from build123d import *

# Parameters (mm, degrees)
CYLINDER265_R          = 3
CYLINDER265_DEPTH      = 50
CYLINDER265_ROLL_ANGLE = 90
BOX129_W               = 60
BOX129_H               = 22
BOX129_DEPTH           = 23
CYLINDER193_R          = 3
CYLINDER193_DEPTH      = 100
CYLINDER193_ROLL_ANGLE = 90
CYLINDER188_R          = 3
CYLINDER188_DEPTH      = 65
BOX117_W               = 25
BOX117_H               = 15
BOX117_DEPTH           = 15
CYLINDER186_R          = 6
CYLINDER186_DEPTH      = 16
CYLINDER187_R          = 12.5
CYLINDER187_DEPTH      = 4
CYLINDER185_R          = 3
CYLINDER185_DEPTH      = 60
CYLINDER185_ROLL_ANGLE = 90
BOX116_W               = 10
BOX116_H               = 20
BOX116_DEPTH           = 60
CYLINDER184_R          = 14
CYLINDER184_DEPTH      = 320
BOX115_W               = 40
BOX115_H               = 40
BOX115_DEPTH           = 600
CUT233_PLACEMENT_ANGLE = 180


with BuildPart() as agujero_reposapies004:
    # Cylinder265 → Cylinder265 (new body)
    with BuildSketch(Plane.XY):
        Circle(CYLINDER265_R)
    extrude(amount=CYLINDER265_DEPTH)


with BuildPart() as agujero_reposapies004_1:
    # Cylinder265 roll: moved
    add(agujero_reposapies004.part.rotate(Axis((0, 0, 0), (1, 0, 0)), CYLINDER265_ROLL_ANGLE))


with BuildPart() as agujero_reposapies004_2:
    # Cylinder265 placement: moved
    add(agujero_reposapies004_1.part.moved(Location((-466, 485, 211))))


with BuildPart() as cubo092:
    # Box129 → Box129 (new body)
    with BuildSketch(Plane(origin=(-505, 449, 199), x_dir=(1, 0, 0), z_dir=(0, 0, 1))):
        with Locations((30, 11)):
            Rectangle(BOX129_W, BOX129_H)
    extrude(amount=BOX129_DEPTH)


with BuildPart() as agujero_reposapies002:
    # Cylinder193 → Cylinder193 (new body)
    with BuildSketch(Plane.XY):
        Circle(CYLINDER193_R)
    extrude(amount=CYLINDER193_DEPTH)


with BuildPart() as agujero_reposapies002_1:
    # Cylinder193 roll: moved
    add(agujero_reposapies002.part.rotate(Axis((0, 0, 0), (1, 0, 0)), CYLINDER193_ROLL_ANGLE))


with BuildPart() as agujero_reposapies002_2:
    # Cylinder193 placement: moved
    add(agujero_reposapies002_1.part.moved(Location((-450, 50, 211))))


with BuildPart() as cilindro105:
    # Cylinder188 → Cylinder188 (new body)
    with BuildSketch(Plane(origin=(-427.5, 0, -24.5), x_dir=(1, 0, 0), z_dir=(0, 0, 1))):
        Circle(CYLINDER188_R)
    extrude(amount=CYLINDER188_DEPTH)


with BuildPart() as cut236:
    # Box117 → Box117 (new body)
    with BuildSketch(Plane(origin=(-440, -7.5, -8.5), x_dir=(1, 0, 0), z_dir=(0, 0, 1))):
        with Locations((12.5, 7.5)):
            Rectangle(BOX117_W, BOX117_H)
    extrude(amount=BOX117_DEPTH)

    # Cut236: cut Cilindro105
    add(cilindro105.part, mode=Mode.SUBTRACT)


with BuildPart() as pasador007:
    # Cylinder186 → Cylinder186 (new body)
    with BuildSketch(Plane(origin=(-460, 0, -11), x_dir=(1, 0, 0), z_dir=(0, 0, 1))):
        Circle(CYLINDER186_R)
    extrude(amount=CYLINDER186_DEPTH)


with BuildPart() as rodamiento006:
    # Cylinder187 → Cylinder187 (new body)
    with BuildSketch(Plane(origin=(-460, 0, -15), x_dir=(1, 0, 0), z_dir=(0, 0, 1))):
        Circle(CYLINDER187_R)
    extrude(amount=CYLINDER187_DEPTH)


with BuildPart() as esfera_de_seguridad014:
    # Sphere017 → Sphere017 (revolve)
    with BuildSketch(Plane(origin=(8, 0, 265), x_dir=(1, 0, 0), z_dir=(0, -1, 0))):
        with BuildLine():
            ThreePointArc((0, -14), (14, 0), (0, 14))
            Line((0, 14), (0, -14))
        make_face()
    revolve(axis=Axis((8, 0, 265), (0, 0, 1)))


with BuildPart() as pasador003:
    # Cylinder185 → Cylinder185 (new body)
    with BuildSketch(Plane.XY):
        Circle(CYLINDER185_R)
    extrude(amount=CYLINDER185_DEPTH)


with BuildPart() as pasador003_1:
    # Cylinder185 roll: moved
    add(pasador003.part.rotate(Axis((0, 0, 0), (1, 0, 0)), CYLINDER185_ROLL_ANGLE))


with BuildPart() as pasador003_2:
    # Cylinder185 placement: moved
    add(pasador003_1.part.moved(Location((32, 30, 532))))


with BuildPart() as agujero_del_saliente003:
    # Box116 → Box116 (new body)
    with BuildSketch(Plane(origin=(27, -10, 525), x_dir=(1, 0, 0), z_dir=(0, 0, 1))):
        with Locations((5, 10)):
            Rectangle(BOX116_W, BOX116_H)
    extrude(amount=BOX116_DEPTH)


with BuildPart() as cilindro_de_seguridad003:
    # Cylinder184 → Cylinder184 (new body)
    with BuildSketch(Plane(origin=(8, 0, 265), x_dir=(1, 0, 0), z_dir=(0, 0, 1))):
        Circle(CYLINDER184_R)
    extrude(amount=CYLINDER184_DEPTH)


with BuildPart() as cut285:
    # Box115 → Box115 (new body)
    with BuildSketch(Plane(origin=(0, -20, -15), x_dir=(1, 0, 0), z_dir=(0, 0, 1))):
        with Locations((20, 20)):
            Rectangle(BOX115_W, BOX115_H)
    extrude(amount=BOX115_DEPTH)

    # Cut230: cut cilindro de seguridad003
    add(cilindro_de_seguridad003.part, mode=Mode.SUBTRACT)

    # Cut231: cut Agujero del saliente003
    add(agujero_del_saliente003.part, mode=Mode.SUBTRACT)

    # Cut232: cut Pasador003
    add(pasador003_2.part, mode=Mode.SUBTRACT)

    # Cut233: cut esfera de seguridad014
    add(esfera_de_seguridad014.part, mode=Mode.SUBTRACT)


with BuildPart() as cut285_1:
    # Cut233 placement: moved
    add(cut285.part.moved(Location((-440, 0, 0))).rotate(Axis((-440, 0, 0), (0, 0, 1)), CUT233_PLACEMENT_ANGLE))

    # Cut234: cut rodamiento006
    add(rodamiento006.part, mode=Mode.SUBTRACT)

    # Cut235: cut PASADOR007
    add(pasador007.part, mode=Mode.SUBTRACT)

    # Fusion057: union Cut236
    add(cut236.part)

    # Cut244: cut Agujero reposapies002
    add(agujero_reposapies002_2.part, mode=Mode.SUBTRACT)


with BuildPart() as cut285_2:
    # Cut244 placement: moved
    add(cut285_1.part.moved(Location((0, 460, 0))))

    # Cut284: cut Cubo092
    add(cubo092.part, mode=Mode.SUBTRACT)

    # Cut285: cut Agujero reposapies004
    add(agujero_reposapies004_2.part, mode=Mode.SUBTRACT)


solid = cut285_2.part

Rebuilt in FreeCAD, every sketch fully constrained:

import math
import FreeCAD as App
import Part
import Sketcher
Q = App.Units.Quantity

doc = App.newDocument("Part")
params = doc.addObject("Spreadsheet::Sheet", "Params")
for row, (alias, value) in enumerate([
    ("sketch1_diameter", "6 mm"),
    ("pad1_length", "50 mm"),
    ("sketch2_width", "60 mm"),
    ("sketch2_height", "22 mm"),
    ("pad2_length", "23 mm"),
    ("sketch3_diameter", "6 mm"),
    ("pad3_length", "100 mm"),
    ("sketch4_diameter", "6 mm"),
    ("pad4_length", "65 mm"),
    ("sketch5_width", "25 mm"),
    ("sketch5_height", "15 mm"),
    ("pad5_length", "15 mm"),
    ("sketch6_diameter", "12 mm"),
    ("pad6_length", "16 mm"),
    ("sketch7_diameter", "25 mm"),
    ("pad7_length", "4 mm"),
    ("sketch8_radius", "14 mm"),
    ("revolution_angle", "360 deg"),
    ("sketch9_diameter", "6 mm"),
    ("pad8_length", "60 mm"),
    ("sketch10_width", "10 mm"),
    ("sketch10_height", "20 mm"),
    ("pad9_length", "60 mm"),
    ("sketch11_diameter", "28 mm"),
    ("pad10_length", "320 mm"),
    ("sketch12_width", "40 mm"),
    ("pad11_length", "600 mm"),
], start=1):
    params.set(f"A{row}", alias)
    params.set(f"B{row}", "=" + value)
    params.setAlias(f"B{row}", alias)

body = doc.addObject("PartDesign::Body", "Body")

sketch1 = doc.addObject("Sketcher::SketchObject", "Sketch")
body.addObject(sketch1)
sketch1.AttachmentSupport = (doc.XY_Plane, [""])
sketch1.MapMode = "FlatFace"
sketch1.addGeometry(Part.Circle(App.Vector(0, 0, 0), App.Vector(0, 0, 1), 3), False)
sketch1.addConstraint([
    Sketcher.Constraint("Coincident", 0, 3, -1, 1),
    Sketcher.Constraint("Diameter", 0, Q("6 mm")),
])
sketch1.setExpression("Constraints[1]", "Params.sketch1_diameter")
pad1 = doc.addObject("PartDesign::Pad", "Pad")
body.addObject(pad1)
pad1.Profile = sketch1
pad1.setExpression("Length", "Params.pad1_length")
body2 = doc.addObject("PartDesign::Body", "Body001")
doc.recompute()

body.Placement = App.Placement(App.Vector(0, 0, 0), App.Rotation(App.Vector(1, 0, 0), 90))
boolean = doc.addObject("PartDesign::Boolean", "Boolean")
body2.addObject(boolean)
boolean.Type = "Fuse"
boolean.addObjects([body])
body3 = doc.addObject("PartDesign::Body", "Body002")
doc.recompute()

body2.Placement = App.Placement(App.Vector(-466, 485, 211), App.Rotation(App.Vector(0, 0, 1), 0))
boolean2 = doc.addObject("PartDesign::Boolean", "Boolean001")
body3.addObject(boolean2)
boolean2.Type = "Fuse"
boolean2.addObjects([body2])
body4 = doc.addObject("PartDesign::Body", "Body003")

sketch2 = doc.addObject("Sketcher::SketchObject", "Sketch001")
body4.addObject(sketch2)
sketch2.AttachmentSupport = (doc.getObject("XY_Plane003"), [""])
sketch2.MapMode = "FlatFace"
sketch2.AttachmentOffset = App.Placement(App.Vector(0, 0, 199), App.Rotation())
sketch2.addGeometry([
    Part.LineSegment(App.Vector(-505, 471, 0), App.Vector(-505, 449, 0)),
    Part.LineSegment(App.Vector(-505, 449, 0), App.Vector(-445, 449, 0)),
    Part.LineSegment(App.Vector(-445, 449, 0), App.Vector(-445, 471, 0)),
    Part.LineSegment(App.Vector(-445, 471, 0), App.Vector(-505, 471, 0)),
], False)
sketch2.addConstraint([
    Sketcher.Constraint("Coincident", 0, 2, 1, 1),
    Sketcher.Constraint("Coincident", 1, 2, 2, 1),
    Sketcher.Constraint("Coincident", 2, 2, 3, 1),
    Sketcher.Constraint("Coincident", 3, 2, 0, 1),
    Sketcher.Constraint("Vertical", 0),
    Sketcher.Constraint("Horizontal", 1),
    Sketcher.Constraint("Vertical", 2),
    Sketcher.Constraint("Horizontal", 3),
    Sketcher.Constraint("DistanceX", 1, 1, 1, 2, Q("60 mm")),
    Sketcher.Constraint("DistanceY", 0, 2, 0, 1, Q("22 mm")),
    Sketcher.Constraint("DistanceX", 0, 2, -1, 1, Q("505 mm")),
    Sketcher.Constraint("DistanceY", -1, 1, 0, 2, Q("449 mm")),
])
sketch2.setExpression("Constraints[8]", "Params.sketch2_width")
sketch2.setExpression("Constraints[9]", "Params.sketch2_height")
pad2 = doc.addObject("PartDesign::Pad", "Pad001")
body4.addObject(pad2)
pad2.Profile = sketch2
pad2.setExpression("Length", "Params.pad2_length")
body5 = doc.addObject("PartDesign::Body", "Body004")

sketch3 = doc.addObject("Sketcher::SketchObject", "Sketch002")
body5.addObject(sketch3)
sketch3.AttachmentSupport = (doc.getObject("XY_Plane004"), [""])
sketch3.MapMode = "FlatFace"
sketch3.addGeometry(Part.Circle(App.Vector(0, 0, 0), App.Vector(0, 0, 1), 3), False)
sketch3.addConstraint([
    Sketcher.Constraint("Coincident", 0, 3, -1, 1),
    Sketcher.Constraint("Diameter", 0, Q("6 mm")),
])
sketch3.setExpression("Constraints[1]", "Params.sketch3_diameter")
pad3 = doc.addObject("PartDesign::Pad", "Pad002")
body5.addObject(pad3)
pad3.Profile = sketch3
pad3.setExpression("Length", "Params.pad3_length")
body6 = doc.addObject("PartDesign::Body", "Body005")
doc.recompute()

body5.Placement = App.Placement(App.Vector(0, 0, 0), App.Rotation(App.Vector(1, 0, 0), 90))
boolean3 = doc.addObject("PartDesign::Boolean", "Boolean002")
body6.addObject(boolean3)
boolean3.Type = "Fuse"
boolean3.addObjects([body5])
body7 = doc.addObject("PartDesign::Body", "Body006")
doc.recompute()

body6.Placement = App.Placement(App.Vector(-450, 50, 211), App.Rotation(App.Vector(0, 0, 1), 0))
boolean4 = doc.addObject("PartDesign::Boolean", "Boolean003")
body7.addObject(boolean4)
boolean4.Type = "Fuse"
boolean4.addObjects([body6])
body8 = doc.addObject("PartDesign::Body", "Body007")

sketch4 = doc.addObject("Sketcher::SketchObject", "Sketch003")
body8.addObject(sketch4)
sketch4.AttachmentSupport = (doc.getObject("XY_Plane007"), [""])
sketch4.MapMode = "FlatFace"
sketch4.AttachmentOffset = App.Placement(App.Vector(0, 0, -24.5), App.Rotation())
sketch4.addGeometry(Part.Circle(App.Vector(-427.5, 0, 0), App.Vector(0, 0, 1), 3), False)
sketch4.addConstraint([
    Sketcher.Constraint("PointOnObject", 0, 3, -1),
    Sketcher.Constraint("Diameter", 0, Q("6 mm")),
    Sketcher.Constraint("DistanceX", 0, 3, -1, 1, Q("427.5 mm")),
])
sketch4.setExpression("Constraints[1]", "Params.sketch4_diameter")
pad4 = doc.addObject("PartDesign::Pad", "Pad003")
body8.addObject(pad4)
pad4.Profile = sketch4
pad4.setExpression("Length", "Params.pad4_length")
body9 = doc.addObject("PartDesign::Body", "Body008")

sketch5 = doc.addObject("Sketcher::SketchObject", "Sketch004")
body9.addObject(sketch5)
sketch5.AttachmentSupport = (doc.getObject("XY_Plane008"), [""])
sketch5.MapMode = "FlatFace"
sketch5.AttachmentOffset = App.Placement(App.Vector(0, 0, -8.5), App.Rotation())
sketch5.addGeometry([
    Part.LineSegment(App.Vector(-440, 8, 0), App.Vector(-440, -8, 0)),
    Part.LineSegment(App.Vector(-440, -8, 0), App.Vector(-415, -8, 0)),
    Part.LineSegment(App.Vector(-415, -8, 0), App.Vector(-415, 8, 0)),
    Part.LineSegment(App.Vector(-415, 8, 0), App.Vector(-440, 8, 0)),
], False)
sketch5.addConstraint([
    Sketcher.Constraint("Coincident", 0, 2, 1, 1),
    Sketcher.Constraint("Coincident", 1, 2, 2, 1),
    Sketcher.Constraint("Coincident", 2, 2, 3, 1),
    Sketcher.Constraint("Coincident", 3, 2, 0, 1),
    Sketcher.Constraint("Vertical", 0),
    Sketcher.Constraint("Horizontal", 1),
    Sketcher.Constraint("Vertical", 2),
    Sketcher.Constraint("Horizontal", 3),
    Sketcher.Constraint("DistanceX", 1, 1, 1, 2, Q("25 mm")),
    Sketcher.Constraint("DistanceY", 0, 2, 0, 1, Q("15 mm")),
    Sketcher.Constraint("DistanceX", 0, 2, -1, 1, Q("440 mm")),
    Sketcher.Constraint("DistanceY", 0, 2, -1, 1, Q("7.5 mm")),
])
sketch5.setExpression("Constraints[8]", "Params.sketch5_width")
sketch5.setExpression("Constraints[9]", "Params.sketch5_height")
pad5 = doc.addObject("PartDesign::Pad", "Pad004")
body9.addObject(pad5)
pad5.Profile = sketch5
pad5.setExpression("Length", "Params.pad5_length")
doc.recompute()

boolean5 = doc.addObject("PartDesign::Boolean", "Boolean004")
body9.addObject(boolean5)
boolean5.Type = "Cut"
boolean5.addObjects([body8])
body10 = doc.addObject("PartDesign::Body", "Body009")

sketch6 = doc.addObject("Sketcher::SketchObject", "Sketch005")
body10.addObject(sketch6)
sketch6.AttachmentSupport = (doc.getObject("XY_Plane009"), [""])
sketch6.MapMode = "FlatFace"
sketch6.AttachmentOffset = App.Placement(App.Vector(0, 0, -11), App.Rotation())
sketch6.addGeometry(Part.Circle(App.Vector(-460, 0, 0), App.Vector(0, 0, 1), 6), False)
sketch6.addConstraint([
    Sketcher.Constraint("PointOnObject", 0, 3, -1),
    Sketcher.Constraint("Diameter", 0, Q("12 mm")),
    Sketcher.Constraint("DistanceX", 0, 3, -1, 1, Q("460 mm")),
])
sketch6.setExpression("Constraints[1]", "Params.sketch6_diameter")
pad6 = doc.addObject("PartDesign::Pad", "Pad005")
body10.addObject(pad6)
pad6.Profile = sketch6
pad6.setExpression("Length", "Params.pad6_length")
body11 = doc.addObject("PartDesign::Body", "Body010")

sketch7 = doc.addObject("Sketcher::SketchObject", "Sketch006")
body11.addObject(sketch7)
sketch7.AttachmentSupport = (doc.getObject("XY_Plane010"), [""])
sketch7.MapMode = "FlatFace"
sketch7.AttachmentOffset = App.Placement(App.Vector(0, 0, -15), App.Rotation())
sketch7.addGeometry(Part.Circle(App.Vector(-460, 0, 0), App.Vector(0, 0, 1), 12), False)
sketch7.addConstraint([
    Sketcher.Constraint("PointOnObject", 0, 3, -1),
    Sketcher.Constraint("Diameter", 0, Q("25 mm")),
    Sketcher.Constraint("DistanceX", 0, 3, -1, 1, Q("460 mm")),
])
sketch7.setExpression("Constraints[1]", "Params.sketch7_diameter")
pad7 = doc.addObject("PartDesign::Pad", "Pad006")
body11.addObject(pad7)
pad7.Profile = sketch7
pad7.setExpression("Length", "Params.pad7_length")
body12 = doc.addObject("PartDesign::Body", "Body011")

sketch8 = doc.addObject("Sketcher::SketchObject", "Sketch007")
body12.addObject(sketch8)
sketch8.AttachmentSupport = (doc.getObject("XZ_Plane011"), [""])
sketch8.MapMode = "FlatFace"
sketch8.addGeometry([
    Part.ArcOfCircle(Part.Circle(App.Vector(8, 265, 0), App.Vector(0, 0, 1), 14), math.radians(-90), math.radians(90)),
    Part.LineSegment(App.Vector(8, 279, 0), App.Vector(8, 251, 0)),
], False)
sketch8.addGeometry(Part.LineSegment(App.Vector(8, 251, 0), App.Vector(8, 279, 0)), True)
sketch8.addConstraint([
    Sketcher.Constraint("Coincident", 0, 1, 1, 2),
    Sketcher.Constraint("Coincident", 1, 1, 0, 2),
    Sketcher.Constraint("Vertical", 1),
    Sketcher.Constraint("Vertical", 2),
    Sketcher.Constraint("Coincident", 2, 1, 0, 1),
    Sketcher.Constraint("Equal", 1, 2),
    Sketcher.Constraint("Radius", 0, Q("14 mm")),
    Sketcher.Constraint("DistanceX", -1, 1, 0, 3, Q("8 mm")),
    Sketcher.Constraint("DistanceY", -1, 1, 0, 3, Q("265 mm")),
    Sketcher.Constraint("DistanceX", -1, 1, 0, 1, Q("8 mm")),
])
sketch8.setExpression("Constraints[6]", "Params.sketch8_radius")
revolution = doc.addObject("PartDesign::Revolution", "Revolution")
body12.addObject(revolution)
revolution.Profile = sketch8
revolution.ReferenceAxis = (sketch8, ["Axis0"])
revolution.setExpression("Angle", "Params.revolution_angle")
body13 = doc.addObject("PartDesign::Body", "Body012")

sketch9 = doc.addObject("Sketcher::SketchObject", "Sketch008")
body13.addObject(sketch9)
sketch9.AttachmentSupport = (doc.getObject("XY_Plane012"), [""])
sketch9.MapMode = "FlatFace"
sketch9.addGeometry(Part.Circle(App.Vector(0, 0, 0), App.Vector(0, 0, 1), 3), False)
sketch9.addConstraint([
    Sketcher.Constraint("Coincident", 0, 3, -1, 1),
    Sketcher.Constraint("Diameter", 0, Q("6 mm")),
])
sketch9.setExpression("Constraints[1]", "Params.sketch9_diameter")
pad8 = doc.addObject("PartDesign::Pad", "Pad007")
body13.addObject(pad8)
pad8.Profile = sketch9
pad8.setExpression("Length", "Params.pad8_length")
body14 = doc.addObject("PartDesign::Body", "Body013")
doc.recompute()

body13.Placement = App.Placement(App.Vector(0, 0, 0), App.Rotation(App.Vector(1, 0, 0), 90))
boolean6 = doc.addObject("PartDesign::Boolean", "Boolean005")
body14.addObject(boolean6)
boolean6.Type = "Fuse"
boolean6.addObjects([body13])
body15 = doc.addObject("PartDesign::Body", "Body014")
doc.recompute()

body14.Placement = App.Placement(App.Vector(32, 30, 532), App.Rotation(App.Vector(0, 0, 1), 0))
boolean7 = doc.addObject("PartDesign::Boolean", "Boolean006")
body15.addObject(boolean7)
boolean7.Type = "Fuse"
boolean7.addObjects([body14])
body16 = doc.addObject("PartDesign::Body", "Body015")

sketch10 = doc.addObject("Sketcher::SketchObject", "Sketch009")
body16.addObject(sketch10)
sketch10.AttachmentSupport = (doc.getObject("XY_Plane015"), [""])
sketch10.MapMode = "FlatFace"
sketch10.AttachmentOffset = App.Placement(App.Vector(0, 0, 525), App.Rotation())
sketch10.addGeometry([
    Part.LineSegment(App.Vector(27, 10, 0), App.Vector(27, -10, 0)),
    Part.LineSegment(App.Vector(27, -10, 0), App.Vector(37, -10, 0)),
    Part.LineSegment(App.Vector(37, -10, 0), App.Vector(37, 10, 0)),
    Part.LineSegment(App.Vector(37, 10, 0), App.Vector(27, 10, 0)),
], False)
sketch10.addConstraint([
    Sketcher.Constraint("Coincident", 0, 2, 1, 1),
    Sketcher.Constraint("Coincident", 1, 2, 2, 1),
    Sketcher.Constraint("Coincident", 2, 2, 3, 1),
    Sketcher.Constraint("Coincident", 3, 2, 0, 1),
    Sketcher.Constraint("Vertical", 0),
    Sketcher.Constraint("Horizontal", 1),
    Sketcher.Constraint("Vertical", 2),
    Sketcher.Constraint("Horizontal", 3),
    Sketcher.Constraint("DistanceX", 1, 1, 1, 2, Q("10 mm")),
    Sketcher.Constraint("DistanceY", 0, 2, 0, 1, Q("20 mm")),
    Sketcher.Constraint("DistanceX", -1, 1, 0, 2, Q("27 mm")),
    Sketcher.Constraint("DistanceY", 0, 2, -1, 1, Q("10 mm")),
])
sketch10.setExpression("Constraints[8]", "Params.sketch10_width")
sketch10.setExpression("Constraints[9]", "Params.sketch10_height")
pad9 = doc.addObject("PartDesign::Pad", "Pad008")
body16.addObject(pad9)
pad9.Profile = sketch10
pad9.setExpression("Length", "Params.pad9_length")
body17 = doc.addObject("PartDesign::Body", "Body016")

sketch11 = doc.addObject("Sketcher::SketchObject", "Sketch010")
body17.addObject(sketch11)
sketch11.AttachmentSupport = (doc.getObject("XY_Plane016"), [""])
sketch11.MapMode = "FlatFace"
sketch11.AttachmentOffset = App.Placement(App.Vector(0, 0, 265), App.Rotation())
sketch11.addGeometry(Part.Circle(App.Vector(8, 0, 0), App.Vector(0, 0, 1), 14), False)
sketch11.addConstraint([
    Sketcher.Constraint("PointOnObject", 0, 3, -1),
    Sketcher.Constraint("Diameter", 0, Q("28 mm")),
    Sketcher.Constraint("DistanceX", -1, 1, 0, 3, Q("8 mm")),
])
sketch11.setExpression("Constraints[1]", "Params.sketch11_diameter")
pad10 = doc.addObject("PartDesign::Pad", "Pad009")
body17.addObject(pad10)
pad10.Profile = sketch11
pad10.setExpression("Length", "Params.pad10_length")
body18 = doc.addObject("PartDesign::Body", "Body017")

sketch12 = doc.addObject("Sketcher::SketchObject", "Sketch011")
body18.addObject(sketch12)
sketch12.AttachmentSupport = (doc.getObject("XY_Plane017"), [""])
sketch12.MapMode = "FlatFace"
sketch12.AttachmentOffset = App.Placement(App.Vector(0, 0, -15), App.Rotation())
sketch12.addGeometry([
    Part.LineSegment(App.Vector(0, 20, 0), App.Vector(0, -20, 0)),
    Part.LineSegment(App.Vector(0, -20, 0), App.Vector(40, -20, 0)),
    Part.LineSegment(App.Vector(40, -20, 0), App.Vector(40, 20, 0)),
    Part.LineSegment(App.Vector(40, 20, 0), App.Vector(0, 20, 0)),
], False)
sketch12.addConstraint([
    Sketcher.Constraint("Coincident", 0, 2, 1, 1),
    Sketcher.Constraint("Coincident", 1, 2, 2, 1),
    Sketcher.Constraint("Coincident", 2, 2, 3, 1),
    Sketcher.Constraint("Coincident", 3, 2, 0, 1),
    Sketcher.Constraint("Vertical", 0),
    Sketcher.Constraint("Horizontal", 1),
    Sketcher.Constraint("Vertical", 2),
    Sketcher.Constraint("Horizontal", 3),
    Sketcher.Constraint("Symmetric", 0, 2, 3, 2, -1, 1),
    Sketcher.Constraint("Equal", 3, 0),
    Sketcher.Constraint("DistanceX", 1, 1, 1, 2, Q("40 mm")),
])
sketch12.setExpression("Constraints[10]", "Params.sketch12_width")
pad11 = doc.addObject("PartDesign::Pad", "Pad010")
body18.addObject(pad11)
pad11.Profile = sketch12
pad11.setExpression("Length", "Params.pad11_length")
doc.recompute()

boolean8 = doc.addObject("PartDesign::Boolean", "Boolean007")
body18.addObject(boolean8)
boolean8.Type = "Cut"
boolean8.addObjects([body17])
doc.recompute()

boolean9 = doc.addObject("PartDesign::Boolean", "Boolean008")
body18.addObject(boolean9)
boolean9.Type = "Cut"
boolean9.addObjects([body16])
doc.recompute()

boolean10 = doc.addObject("PartDesign::Boolean", "Boolean009")
body18.addObject(boolean10)
boolean10.Type = "Cut"
boolean10.addObjects([body15])
doc.recompute()

boolean11 = doc.addObject("PartDesign::Boolean", "Boolean010")
body18.addObject(boolean11)
boolean11.Type = "Cut"
boolean11.addObjects([body12])
body19 = doc.addObject("PartDesign::Body", "Body018")
doc.recompute()

body18.Placement = App.Placement(App.Vector(-440, 0, 0), App.Rotation(App.Vector(0, 0, 1), 180))
boolean12 = doc.addObject("PartDesign::Boolean", "Boolean011")
body19.addObject(boolean12)
boolean12.Type = "Fuse"
boolean12.addObjects([body18])
doc.recompute()

boolean13 = doc.addObject("PartDesign::Boolean", "Boolean012")
body19.addObject(boolean13)
boolean13.Type = "Cut"
boolean13.addObjects([body11])
doc.recompute()

boolean14 = doc.addObject("PartDesign::Boolean", "Boolean013")
body19.addObject(boolean14)
boolean14.Type = "Cut"
boolean14.addObjects([body10])
doc.recompute()

boolean15 = doc.addObject("PartDesign::Boolean", "Boolean014")
body19.addObject(boolean15)
boolean15.Type = "Fuse"
boolean15.addObjects([body9])
doc.recompute()

boolean16 = doc.addObject("PartDesign::Boolean", "Boolean015")
body19.addObject(boolean16)
boolean16.Type = "Cut"
boolean16.addObjects([body7])
body20 = doc.addObject("PartDesign::Body", "Body019")
doc.recompute()

body19.Placement = App.Placement(App.Vector(0, 460, 0), App.Rotation(App.Vector(0, 0, 1), 0))
boolean17 = doc.addObject("PartDesign::Boolean", "Boolean016")
body20.addObject(boolean17)
boolean17.Type = "Fuse"
boolean17.addObjects([body19])
doc.recompute()

boolean18 = doc.addObject("PartDesign::Boolean", "Boolean017")
body20.addObject(boolean18)
boolean18.Type = "Cut"
boolean18.addObjects([body4])
doc.recompute()

boolean19 = doc.addObject("PartDesign::Boolean", "Boolean018")
body20.addObject(boolean19)
boolean19.Type = "Cut"
boolean19.addObjects([body3])

doc.recompute()
